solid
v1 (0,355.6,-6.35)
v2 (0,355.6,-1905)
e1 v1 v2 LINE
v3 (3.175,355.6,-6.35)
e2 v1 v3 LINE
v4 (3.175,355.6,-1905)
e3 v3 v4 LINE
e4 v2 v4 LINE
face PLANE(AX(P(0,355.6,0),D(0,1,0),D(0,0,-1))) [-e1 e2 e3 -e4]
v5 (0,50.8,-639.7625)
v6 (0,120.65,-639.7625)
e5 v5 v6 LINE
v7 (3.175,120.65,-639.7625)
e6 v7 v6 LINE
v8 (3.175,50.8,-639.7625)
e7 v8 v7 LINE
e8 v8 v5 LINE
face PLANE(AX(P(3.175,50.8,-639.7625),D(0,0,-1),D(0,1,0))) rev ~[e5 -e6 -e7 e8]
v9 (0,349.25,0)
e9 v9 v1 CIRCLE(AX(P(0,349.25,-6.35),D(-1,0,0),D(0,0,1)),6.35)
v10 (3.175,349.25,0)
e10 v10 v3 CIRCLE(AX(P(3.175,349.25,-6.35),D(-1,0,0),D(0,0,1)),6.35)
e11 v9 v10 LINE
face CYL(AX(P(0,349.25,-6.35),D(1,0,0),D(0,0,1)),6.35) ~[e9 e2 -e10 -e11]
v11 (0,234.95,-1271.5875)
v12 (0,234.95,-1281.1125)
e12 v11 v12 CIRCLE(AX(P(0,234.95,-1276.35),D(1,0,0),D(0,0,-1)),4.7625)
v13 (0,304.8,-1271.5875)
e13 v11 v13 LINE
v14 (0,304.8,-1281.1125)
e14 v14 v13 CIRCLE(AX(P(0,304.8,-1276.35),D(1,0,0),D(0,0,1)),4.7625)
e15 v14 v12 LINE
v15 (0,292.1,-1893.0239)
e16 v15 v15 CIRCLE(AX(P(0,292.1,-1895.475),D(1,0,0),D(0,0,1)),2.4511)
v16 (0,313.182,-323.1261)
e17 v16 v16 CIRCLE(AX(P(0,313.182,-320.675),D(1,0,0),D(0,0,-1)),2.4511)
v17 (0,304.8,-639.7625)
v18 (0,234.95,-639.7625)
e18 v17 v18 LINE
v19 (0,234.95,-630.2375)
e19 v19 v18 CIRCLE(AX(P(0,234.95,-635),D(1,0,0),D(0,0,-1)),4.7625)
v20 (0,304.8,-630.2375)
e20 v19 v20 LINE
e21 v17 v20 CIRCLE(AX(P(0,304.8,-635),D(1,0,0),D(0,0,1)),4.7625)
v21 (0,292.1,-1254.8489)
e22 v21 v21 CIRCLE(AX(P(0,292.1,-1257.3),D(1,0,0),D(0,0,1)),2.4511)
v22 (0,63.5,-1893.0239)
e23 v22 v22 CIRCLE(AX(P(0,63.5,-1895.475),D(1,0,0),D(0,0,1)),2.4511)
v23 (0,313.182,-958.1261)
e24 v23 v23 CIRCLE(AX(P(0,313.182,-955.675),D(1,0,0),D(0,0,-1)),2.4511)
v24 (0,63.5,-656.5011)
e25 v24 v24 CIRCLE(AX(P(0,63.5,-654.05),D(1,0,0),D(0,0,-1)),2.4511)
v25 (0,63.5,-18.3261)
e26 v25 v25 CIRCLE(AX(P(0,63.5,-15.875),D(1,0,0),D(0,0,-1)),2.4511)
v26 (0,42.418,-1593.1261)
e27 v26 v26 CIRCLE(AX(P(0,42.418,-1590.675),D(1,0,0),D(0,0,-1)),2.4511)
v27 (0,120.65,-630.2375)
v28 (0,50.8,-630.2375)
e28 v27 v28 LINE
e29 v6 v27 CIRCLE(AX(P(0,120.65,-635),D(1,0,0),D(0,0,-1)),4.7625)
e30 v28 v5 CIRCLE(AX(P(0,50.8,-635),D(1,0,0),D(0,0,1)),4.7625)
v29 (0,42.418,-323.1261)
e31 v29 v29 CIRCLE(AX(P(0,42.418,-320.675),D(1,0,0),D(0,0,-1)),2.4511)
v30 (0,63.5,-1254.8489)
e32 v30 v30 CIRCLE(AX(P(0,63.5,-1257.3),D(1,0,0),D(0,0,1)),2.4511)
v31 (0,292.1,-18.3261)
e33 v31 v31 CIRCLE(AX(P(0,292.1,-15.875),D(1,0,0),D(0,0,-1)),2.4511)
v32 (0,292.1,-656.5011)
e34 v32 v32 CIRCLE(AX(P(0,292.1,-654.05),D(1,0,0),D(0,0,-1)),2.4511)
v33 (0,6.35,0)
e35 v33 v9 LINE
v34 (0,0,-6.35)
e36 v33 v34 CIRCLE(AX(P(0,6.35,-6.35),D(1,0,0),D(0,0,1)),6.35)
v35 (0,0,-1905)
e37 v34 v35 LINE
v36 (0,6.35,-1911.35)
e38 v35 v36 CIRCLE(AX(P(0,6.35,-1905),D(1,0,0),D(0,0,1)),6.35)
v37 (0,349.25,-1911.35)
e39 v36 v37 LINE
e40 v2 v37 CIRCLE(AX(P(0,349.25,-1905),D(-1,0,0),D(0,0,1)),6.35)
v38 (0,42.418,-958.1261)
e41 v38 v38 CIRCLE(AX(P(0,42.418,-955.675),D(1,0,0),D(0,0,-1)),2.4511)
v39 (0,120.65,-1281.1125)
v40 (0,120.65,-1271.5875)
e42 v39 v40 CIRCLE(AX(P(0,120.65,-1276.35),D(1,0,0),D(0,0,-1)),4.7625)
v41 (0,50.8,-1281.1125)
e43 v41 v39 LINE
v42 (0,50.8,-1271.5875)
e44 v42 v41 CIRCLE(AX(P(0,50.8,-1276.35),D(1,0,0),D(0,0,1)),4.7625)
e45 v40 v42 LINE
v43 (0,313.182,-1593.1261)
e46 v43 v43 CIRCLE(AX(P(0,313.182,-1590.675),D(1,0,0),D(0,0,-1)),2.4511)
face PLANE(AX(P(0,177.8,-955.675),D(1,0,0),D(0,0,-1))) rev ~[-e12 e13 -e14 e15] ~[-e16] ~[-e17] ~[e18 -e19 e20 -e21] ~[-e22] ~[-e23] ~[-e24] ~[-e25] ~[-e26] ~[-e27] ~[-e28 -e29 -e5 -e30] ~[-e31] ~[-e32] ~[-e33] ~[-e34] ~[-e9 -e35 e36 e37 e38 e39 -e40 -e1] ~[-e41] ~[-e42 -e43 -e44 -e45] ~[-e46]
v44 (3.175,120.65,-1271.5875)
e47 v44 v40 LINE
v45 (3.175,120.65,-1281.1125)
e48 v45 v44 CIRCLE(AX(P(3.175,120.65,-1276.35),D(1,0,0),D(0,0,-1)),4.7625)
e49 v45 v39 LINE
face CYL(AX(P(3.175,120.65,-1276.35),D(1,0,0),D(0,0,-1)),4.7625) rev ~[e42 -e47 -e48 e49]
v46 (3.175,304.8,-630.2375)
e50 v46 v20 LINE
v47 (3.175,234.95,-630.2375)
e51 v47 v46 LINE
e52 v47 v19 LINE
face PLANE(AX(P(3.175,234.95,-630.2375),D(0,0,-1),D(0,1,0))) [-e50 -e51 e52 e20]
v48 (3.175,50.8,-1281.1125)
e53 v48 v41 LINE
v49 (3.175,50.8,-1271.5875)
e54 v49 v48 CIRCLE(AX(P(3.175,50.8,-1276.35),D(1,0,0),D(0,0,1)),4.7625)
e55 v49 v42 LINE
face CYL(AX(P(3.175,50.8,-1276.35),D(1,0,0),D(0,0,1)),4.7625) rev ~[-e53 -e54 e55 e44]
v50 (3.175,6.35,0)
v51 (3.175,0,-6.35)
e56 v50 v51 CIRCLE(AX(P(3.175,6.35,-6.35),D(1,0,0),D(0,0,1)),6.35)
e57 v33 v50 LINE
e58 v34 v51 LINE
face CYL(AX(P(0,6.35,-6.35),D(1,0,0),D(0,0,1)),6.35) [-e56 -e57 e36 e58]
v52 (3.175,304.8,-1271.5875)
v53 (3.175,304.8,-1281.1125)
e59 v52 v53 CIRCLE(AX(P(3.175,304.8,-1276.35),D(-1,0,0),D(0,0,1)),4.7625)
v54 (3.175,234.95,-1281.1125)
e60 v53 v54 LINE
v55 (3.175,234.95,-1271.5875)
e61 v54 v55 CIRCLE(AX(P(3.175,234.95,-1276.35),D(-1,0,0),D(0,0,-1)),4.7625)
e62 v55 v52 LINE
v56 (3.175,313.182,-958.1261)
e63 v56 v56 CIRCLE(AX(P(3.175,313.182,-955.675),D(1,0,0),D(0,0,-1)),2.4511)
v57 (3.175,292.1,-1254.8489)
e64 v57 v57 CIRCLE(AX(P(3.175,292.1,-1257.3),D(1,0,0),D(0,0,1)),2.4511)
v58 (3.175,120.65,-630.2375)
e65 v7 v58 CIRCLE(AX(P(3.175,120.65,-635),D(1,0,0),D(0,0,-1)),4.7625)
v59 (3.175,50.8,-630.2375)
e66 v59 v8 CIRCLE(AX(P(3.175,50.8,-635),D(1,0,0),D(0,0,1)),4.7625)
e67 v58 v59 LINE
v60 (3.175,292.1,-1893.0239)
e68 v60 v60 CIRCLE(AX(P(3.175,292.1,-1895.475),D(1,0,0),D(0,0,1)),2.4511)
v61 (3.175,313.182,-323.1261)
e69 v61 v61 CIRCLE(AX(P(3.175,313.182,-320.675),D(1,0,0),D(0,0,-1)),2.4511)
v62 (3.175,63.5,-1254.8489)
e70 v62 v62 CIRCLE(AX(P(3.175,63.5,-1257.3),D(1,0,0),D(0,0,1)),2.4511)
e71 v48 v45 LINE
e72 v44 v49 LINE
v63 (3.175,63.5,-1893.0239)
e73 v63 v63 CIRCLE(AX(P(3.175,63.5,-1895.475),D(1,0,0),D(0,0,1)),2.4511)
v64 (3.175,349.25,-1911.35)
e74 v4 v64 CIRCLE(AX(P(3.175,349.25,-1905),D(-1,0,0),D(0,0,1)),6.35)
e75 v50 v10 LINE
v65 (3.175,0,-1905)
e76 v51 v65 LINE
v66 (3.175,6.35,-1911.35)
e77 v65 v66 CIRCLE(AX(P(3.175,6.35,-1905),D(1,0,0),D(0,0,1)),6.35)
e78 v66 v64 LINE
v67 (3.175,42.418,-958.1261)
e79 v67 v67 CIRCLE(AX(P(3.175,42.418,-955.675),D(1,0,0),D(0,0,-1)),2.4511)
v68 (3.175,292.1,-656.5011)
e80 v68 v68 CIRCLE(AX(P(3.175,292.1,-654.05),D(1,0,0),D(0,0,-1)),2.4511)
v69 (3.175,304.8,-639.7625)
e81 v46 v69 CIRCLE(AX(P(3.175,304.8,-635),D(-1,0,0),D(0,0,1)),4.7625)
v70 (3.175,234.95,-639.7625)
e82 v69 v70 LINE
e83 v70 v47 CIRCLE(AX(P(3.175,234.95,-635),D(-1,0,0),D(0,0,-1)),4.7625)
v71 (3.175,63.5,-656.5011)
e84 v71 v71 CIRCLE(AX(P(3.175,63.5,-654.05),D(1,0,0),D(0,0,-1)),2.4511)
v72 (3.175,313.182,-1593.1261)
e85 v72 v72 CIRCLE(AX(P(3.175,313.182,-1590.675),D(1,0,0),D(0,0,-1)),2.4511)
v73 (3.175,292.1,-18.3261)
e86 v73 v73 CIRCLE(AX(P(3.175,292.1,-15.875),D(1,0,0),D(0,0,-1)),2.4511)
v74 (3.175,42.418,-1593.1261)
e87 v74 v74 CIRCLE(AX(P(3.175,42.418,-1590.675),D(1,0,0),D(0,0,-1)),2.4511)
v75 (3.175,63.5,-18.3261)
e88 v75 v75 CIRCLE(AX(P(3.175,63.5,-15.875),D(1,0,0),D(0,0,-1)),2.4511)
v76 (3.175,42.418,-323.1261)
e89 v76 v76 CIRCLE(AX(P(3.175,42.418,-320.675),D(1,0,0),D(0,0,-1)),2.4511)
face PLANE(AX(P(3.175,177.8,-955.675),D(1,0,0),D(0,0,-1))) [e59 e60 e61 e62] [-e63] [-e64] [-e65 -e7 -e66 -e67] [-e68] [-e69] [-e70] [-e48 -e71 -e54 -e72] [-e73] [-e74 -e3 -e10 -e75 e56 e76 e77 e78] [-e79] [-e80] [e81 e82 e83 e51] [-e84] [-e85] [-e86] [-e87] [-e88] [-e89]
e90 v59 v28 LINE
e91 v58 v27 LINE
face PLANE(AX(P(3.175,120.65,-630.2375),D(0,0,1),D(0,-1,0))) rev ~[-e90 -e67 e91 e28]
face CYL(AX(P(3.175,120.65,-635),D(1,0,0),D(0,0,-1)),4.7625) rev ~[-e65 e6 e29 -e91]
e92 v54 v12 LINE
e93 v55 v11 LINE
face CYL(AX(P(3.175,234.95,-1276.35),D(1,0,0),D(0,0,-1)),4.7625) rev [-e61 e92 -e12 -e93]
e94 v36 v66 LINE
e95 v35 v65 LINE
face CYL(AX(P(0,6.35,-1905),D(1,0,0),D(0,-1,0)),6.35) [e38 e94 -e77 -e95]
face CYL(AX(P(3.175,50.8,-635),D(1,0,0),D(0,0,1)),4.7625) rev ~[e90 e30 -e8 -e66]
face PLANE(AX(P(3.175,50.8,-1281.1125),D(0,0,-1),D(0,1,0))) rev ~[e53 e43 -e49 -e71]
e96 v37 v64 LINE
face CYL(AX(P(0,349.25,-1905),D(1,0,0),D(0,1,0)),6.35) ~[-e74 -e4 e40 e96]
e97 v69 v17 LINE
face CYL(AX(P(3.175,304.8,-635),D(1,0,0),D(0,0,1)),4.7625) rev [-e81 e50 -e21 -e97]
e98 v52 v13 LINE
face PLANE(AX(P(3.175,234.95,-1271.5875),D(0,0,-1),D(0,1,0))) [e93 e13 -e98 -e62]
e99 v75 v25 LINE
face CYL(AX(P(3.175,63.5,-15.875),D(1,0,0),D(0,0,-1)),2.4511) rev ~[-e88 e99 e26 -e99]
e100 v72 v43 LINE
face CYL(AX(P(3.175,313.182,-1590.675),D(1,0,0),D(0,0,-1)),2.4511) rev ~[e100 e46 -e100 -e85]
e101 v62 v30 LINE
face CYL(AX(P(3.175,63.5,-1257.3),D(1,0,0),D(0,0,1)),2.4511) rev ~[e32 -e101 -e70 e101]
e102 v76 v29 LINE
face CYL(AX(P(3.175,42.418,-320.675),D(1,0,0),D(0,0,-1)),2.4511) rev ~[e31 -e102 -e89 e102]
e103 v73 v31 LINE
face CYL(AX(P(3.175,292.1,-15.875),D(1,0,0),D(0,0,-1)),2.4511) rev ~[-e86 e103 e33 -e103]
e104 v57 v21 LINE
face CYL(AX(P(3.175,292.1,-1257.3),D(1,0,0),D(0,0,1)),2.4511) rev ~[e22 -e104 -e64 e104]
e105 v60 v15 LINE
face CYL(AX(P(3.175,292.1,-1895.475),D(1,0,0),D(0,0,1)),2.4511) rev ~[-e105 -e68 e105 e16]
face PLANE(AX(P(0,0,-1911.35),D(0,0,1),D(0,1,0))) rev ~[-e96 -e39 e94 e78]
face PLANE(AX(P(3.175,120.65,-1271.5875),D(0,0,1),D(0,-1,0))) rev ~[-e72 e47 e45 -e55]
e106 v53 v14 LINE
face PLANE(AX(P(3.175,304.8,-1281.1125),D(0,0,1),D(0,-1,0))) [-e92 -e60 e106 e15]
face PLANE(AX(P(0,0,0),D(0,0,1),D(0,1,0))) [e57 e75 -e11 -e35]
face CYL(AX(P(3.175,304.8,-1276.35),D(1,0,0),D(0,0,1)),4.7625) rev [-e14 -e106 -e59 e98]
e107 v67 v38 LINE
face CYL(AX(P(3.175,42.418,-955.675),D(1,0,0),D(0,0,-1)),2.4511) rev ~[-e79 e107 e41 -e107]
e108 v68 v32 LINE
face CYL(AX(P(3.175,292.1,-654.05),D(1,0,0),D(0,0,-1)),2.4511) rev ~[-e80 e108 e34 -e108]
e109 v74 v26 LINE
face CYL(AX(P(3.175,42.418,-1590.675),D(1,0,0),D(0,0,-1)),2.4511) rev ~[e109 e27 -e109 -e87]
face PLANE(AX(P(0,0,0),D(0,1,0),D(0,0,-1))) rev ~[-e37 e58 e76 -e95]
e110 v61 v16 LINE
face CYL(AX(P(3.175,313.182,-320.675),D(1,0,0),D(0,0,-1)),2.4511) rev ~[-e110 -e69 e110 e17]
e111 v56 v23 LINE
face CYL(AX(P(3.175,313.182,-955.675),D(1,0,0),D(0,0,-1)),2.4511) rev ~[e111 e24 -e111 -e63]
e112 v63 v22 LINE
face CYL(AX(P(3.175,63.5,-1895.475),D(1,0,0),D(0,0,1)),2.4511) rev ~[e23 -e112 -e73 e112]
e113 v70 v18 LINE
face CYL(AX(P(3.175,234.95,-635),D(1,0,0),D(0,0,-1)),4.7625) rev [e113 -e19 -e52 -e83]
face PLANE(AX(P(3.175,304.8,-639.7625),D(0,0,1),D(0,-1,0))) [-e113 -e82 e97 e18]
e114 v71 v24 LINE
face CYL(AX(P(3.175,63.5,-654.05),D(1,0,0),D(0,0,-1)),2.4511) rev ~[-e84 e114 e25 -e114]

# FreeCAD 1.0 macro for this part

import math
import FreeCAD as App
import Part
import Sketcher
from FreeCAD import Vector
Q = App.Units.Quantity


def edges_at(feature, points):
    """Names of the edges that pass closest to the given points."""
    edges = feature.Shape.Edges
    near = lambda p: min(range(len(edges)), key=lambda i: edges[i].distToShape(Part.Vertex(*p))[0])
    return sorted({f"Edge{near(p) + 1}" for p in points})


def add_polygon(sketch, points):
    """Adds a closed chain of lines whose ends are joined by coincident constraints."""
    first, n = sketch.GeometryCount, len(points)
    for a, b in zip(points, points[1:] + points[:1]):
        sketch.addGeometry(Part.LineSegment(App.Vector(*a, 0), App.Vector(*b, 0)), False)
    for i in range(n):
        sketch.addConstraint(Sketcher.Constraint("Coincident", first + i, 2, first + (i + 1) % n, 1))

doc = App.newDocument("Part")
body = doc.addObject("PartDesign::Body", "Body")

# Sketch on YZ plane
sketch1 = body.newObject("Sketcher::SketchObject", "Sketch")
sketch1.AttachmentSupport = (doc.getObject("YZ_Plane"), [""])
sketch1.MapMode = "FlatFace"
add_polygon(sketch1, [(355.6, 0), (0, 0), (0, -1911.35), (355.6, -1911.35)])  # lines 0-3
sketch1.addConstraint([
    Sketcher.Constraint("Horizontal", 0),
    Sketcher.Constraint("Vertical", 1),
    Sketcher.Constraint("Horizontal", 2),
    Sketcher.Constraint("Vertical", 3),
    Sketcher.Constraint("Coincident", 0, 2, -1, 1),
    Sketcher.Constraint("DistanceX", 0, 2, 0, 1, Q("14 in")),
    Sketcher.Constraint("DistanceY", 1, 2, 1, 1, Q("75.25 in")),
])
pad1 = body.newObject("PartDesign::Pad", "Pad")
pad1.Profile = sketch1
pad1.Length = Q("0.125 in")

# Sketch on YZ plane
sketch2 = body.newObject("Sketcher::SketchObject", "Sketch001")
sketch2.AttachmentSupport = (doc.getObject("YZ_Plane"), [""])
sketch2.MapMode = "FlatFace"
sketch2.AttachmentOffset = App.Placement(Vector(0, 0, 0.125 * 25.4), App.Rotation())
sketch2.addGeometry([
    Part.Circle(Vector(292.1, -15.875, 0), Vector(0, 0, 1), 2.4511),  # 0
    Part.Circle(Vector(292.1, -654.05, 0), Vector(0, 0, 1), 2.4511),  # 1
    Part.Circle(Vector(313.182, -320.675, 0), Vector(0, 0, 1), 2.4511),  # 2
    Part.Circle(Vector(313.182, -955.675, 0), Vector(0, 0, 1), 2.4511),  # 3
    Part.Circle(Vector(313.182, -1590.675, 0), Vector(0, 0, 1), 2.4511),  # 4
    Part.Circle(Vector(42.418, -955.675, 0), Vector(0, 0, 1), 2.4511),  # 5
    Part.Circle(Vector(42.418, -1590.675, 0), Vector(0, 0, 1), 2.4511),  # 6
    Part.Circle(Vector(42.418, -320.675, 0), Vector(0, 0, 1), 2.4511),  # 7
    Part.Circle(Vector(63.5, -15.875, 0), Vector(0, 0, 1), 2.4511),  # 8
    Part.Circle(Vector(63.5, -654.05, 0), Vector(0, 0, 1), 2.4511),  # 9
    Part.Circle(Vector(63.5, -1895.475, 0), Vector(0, 0, 1), 2.4511),  # 10
    Part.Circle(Vector(292.1, -1895.475, 0), Vector(0, 0, 1), 2.4511),  # 11
    Part.Circle(Vector(63.5, -1257.3, 0), Vector(0, 0, 1), 2.4511),  # 12
    Part.Circle(Vector(292.1, -1257.3, 0), Vector(0, 0, 1), 2.4511),  # 13
], False)
sketch2.addConstraint([
    Sketcher.Constraint("Equal", 0, 1),
    Sketcher.Constraint("Equal", 1, 2),
    Sketcher.Constraint("Equal", 2, 3),
    Sketcher.Constraint("Equal", 3, 4),
    Sketcher.Constraint("Equal", 4, 5),
    Sketcher.Constraint("Equal", 5, 6),
    Sketcher.Constraint("Equal", 6, 7),
    Sketcher.Constraint("Equal", 7, 8),
    Sketcher.Constraint("Equal", 8, 9),
    Sketcher.Constraint("Equal", 9, 10),
    Sketcher.Constraint("Equal", 10, 11),
    Sketcher.Constraint("Equal", 11, 12),
    Sketcher.Constraint("Equal", 12, 13),
    Sketcher.Constraint("Horizontal", 3, 3, 5, 3),
    Sketcher.Constraint("Horizontal", 4, 3, 6, 3),
    Sketcher.Constraint("Horizontal", 2, 3, 7, 3),
    Sketcher.Constraint("Horizontal", 0, 3, 8, 3),
    Sketcher.Constraint("Horizontal", 1, 3, 9, 3),
    Sketcher.Constraint("Horizontal", 10, 3, 11, 3),
    Sketcher.Constraint("Horizontal", 12, 3, 13, 3),
    Sketcher.Constraint("Vertical", 0, 3, 1, 3),
    Sketcher.Constraint("Vertical", 2, 3, 3, 3),
    Sketcher.Constraint("Vertical", 3, 3, 4, 3),
    Sketcher.Constraint("Vertical", 5, 3, 6, 3),
    Sketcher.Constraint("Vertical", 6, 3, 7, 3),
    Sketcher.Constraint("Vertical", 8, 3, 9, 3),
    Sketcher.Constraint("Vertical", 9, 3, 10, 3),
    Sketcher.Constraint("Vertical", 1, 3, 11, 3),
    Sketcher.Constraint("Vertical", 10, 3, 12, 3),
    Sketcher.Constraint("Vertical", 11, 3, 13, 3),
    Sketcher.Constraint("Diameter", 0, Q("0.193 in")),
    Sketcher.Constraint("DistanceY", 2, 3, 0, 3, Q("12 in")),
    Sketcher.Constraint("DistanceY", 3, 3, 2, 3, Q("25 in")),
    Sketcher.Constraint("DistanceY", 4, 3, 3, 3, Q("25 in")),
    Sketcher.Constraint("DistanceX", 8, 3, 0, 3, Q("9 in")),
    Sketcher.Constraint("DistanceY", 10, 3, 6, 3, Q("12 in")),
    Sketcher.Constraint("DistanceX", -1, 1, 0, 3, Q("11.5 in")),
    Sketcher.Constraint("DistanceY", 12, 3, -1, 1, Q("49.5 in")),
    Sketcher.Constraint("DistanceY", 1, 3, -1, 1, Q("25.75 in")),
    Sketcher.Constraint("DistanceX", -1, 1, 2, 3, Q("12.33 in")),
    Sketcher.Constraint("DistanceX", -1, 1, 5, 3, Q("1.67 in")),
    Sketcher.Constraint("DistanceY", 0, 3, -1, 1, Q("0.625 in")),
])
pocket1 = body.newObject("PartDesign::Pocket", "Pocket")
pocket1.Profile = sketch2
pocket1.Type = "ThroughAll"
doc.recompute()

fillet = body.newObject("PartDesign::Fillet", "Fillet")
fillet.Base = (pocket1, edges_at(pocket1, [
    (1.587, 355.6, 0),
    (1.587, 355.6, -1911.35),
    (1.587, 0, -1911.35),
    (1.587, 0, 0),
]))
fillet.Radius = Q("0.25 in")

# Sketch on YZ plane
sketch3 = body.newObject("Sketcher::SketchObject", "Sketch002")
sketch3.AttachmentSupport = (doc.getObject("YZ_Plane"), [""])
sketch3.MapMode = "FlatFace"
sketch3.AttachmentOffset = App.Placement(Vector(0, 0, 0.125 * 25.4), App.Rotation())
sketch3.addGeometry([
    Part.LineSegment(Vector(234.95, -639.7625, 0), Vector(304.8, -639.7625, 0)),  # 0
    Part.ArcOfCircle(Part.Circle(Vector(304.8, -635, 0), Vector(0, 0, 1), 4.7625), math.radians(-90), math.radians(90)),  # 1
    Part.LineSegment(Vector(304.8, -630.2375, 0), Vector(234.95, -630.2375, 0)),  # 2
    Part.ArcOfCircle(Part.Circle(Vector(234.95, -635, 0), Vector(0, 0, 1), 4.7625), math.radians(90), math.radians(270)),  # 3
    Part.LineSegment(Vector(234.95, -1281.1125, 0), Vector(304.8, -1281.1125, 0)),  # 4
    Part.ArcOfCircle(Part.Circle(Vector(304.8, -1276.35, 0), Vector(0, 0, 1), 4.7625), math.radians(-90), math.radians(90)),  # 5
    Part.LineSegment(Vector(304.8, -1271.5875, 0), Vector(234.95, -1271.5875, 0)),  # 6
    Part.ArcOfCircle(Part.Circle(Vector(234.95, -1276.35, 0), Vector(0, 0, 1), 4.7625), math.radians(90), math.radians(270)),  # 7
    Part.LineSegment(Vector(50.8, -1281.1125, 0), Vector(120.65, -1281.1125, 0)),  # 8
    Part.ArcOfCircle(Part.Circle(Vector(120.65, -1276.35, 0), Vector(0, 0, 1), 4.7625), math.radians(-90), math.radians(90)),  # 9
    Part.LineSegment(Vector(120.65, -1271.5875, 0), Vector(50.8, -1271.5875, 0)),  # 10
    Part.ArcOfCircle(Part.Circle(Vector(50.8, -1276.35, 0), Vector(0, 0, 1), 4.7625), math.radians(90), math.radians(270)),  # 11
    Part.LineSegment(Vector(50.8, -639.7625, 0), Vector(120.65, -639.7625, 0)),  # 12
    Part.ArcOfCircle(Part.Circle(Vector(120.65, -635, 0), Vector(0, 0, 1), 4.7625), math.radians(-90), math.radians(90)),  # 13
    Part.LineSegment(Vector(120.65, -630.2375, 0), Vector(50.8, -630.2375, 0)),  # 14
    Part.ArcOfCircle(Part.Circle(Vector(50.8, -635, 0), Vector(0, 0, 1), 4.7625), math.radians(90), math.radians(270)),  # 15
], False)
sketch3.addConstraint([
    Sketcher.Constraint("Tangent", 0, 2, 1, 1),
    Sketcher.Constraint("Tangent", 1, 2, 2, 1),
    Sketcher.Constraint("Tangent", 2, 2, 3, 1),
    Sketcher.Constraint("Tangent", 3, 2, 0, 1),
    Sketcher.Constraint("Tangent", 4, 2, 5, 1),
    Sketcher.Constraint("Tangent", 5, 2, 6, 1),
    Sketcher.Constraint("Tangent", 6, 2, 7, 1),
    Sketcher.Constraint("Tangent", 7, 2, 4, 1),
    Sketcher.Constraint("Tangent", 8, 2, 9, 1),
    Sketcher.Constraint("Tangent", 9, 2, 10, 1),
    Sketcher.Constraint("Tangent", 10, 2, 11, 1),
    Sketcher.Constraint("Tangent", 11, 2, 8, 1),
    Sketcher.Constraint("Tangent", 12, 2, 13, 1),
    Sketcher.Constraint("Tangent", 13, 2, 14, 1),
    Sketcher.Constraint("Tangent", 14, 2, 15, 1),
    Sketcher.Constraint("Tangent", 15, 2, 12, 1),
    Sketcher.Constraint("Horizontal", 0),
    Sketcher.Constraint("Horizontal", 2),
    Sketcher.Constraint("Horizontal", 4),
    Sketcher.Constraint("Horizontal", 6),
    Sketcher.Constraint("Horizontal", 8),
    Sketcher.Constraint("Horizontal", 10),
    Sketcher.Constraint("Horizontal", 12),
    Sketcher.Constraint("Horizontal", 14),
    Sketcher.Constraint("Equal", 3, 5),
    Sketcher.Constraint("Equal", 7, 9),
    Sketcher.Constraint("Equal", 11, 13),
    Sketcher.Constraint("Horizontal", 7, 3, 9, 3),
    Sketcher.Constraint("Horizontal", 3, 3, 13, 3),
    Sketcher.Constraint("Vertical", 1, 3, 5, 3),
    Sketcher.Constraint("Vertical", 3, 3, 7, 3),
    Sketcher.Constraint("Vertical", 9, 3, 13, 3),
    Sketcher.Constraint("Vertical", 11, 3, 15, 3),
    Sketcher.Constraint("Equal", 6, 8),
    Sketcher.Constraint("DistanceX", -1, 1, 1, 3, Q("12 in")),
    Sketcher.Constraint("DistanceY", 1, 3, -1, 1, Q("25 in")),
    Sketcher.Constraint("DistanceX", -1, 1, 11, 3, Q("2 in")),
    Sketcher.Constraint("Radius", 1, Q("0.1875 in")),
    Sketcher.Constraint("DistanceX", 0, 1, 0, 2, Q("2.75 in")),
    Sketcher.Constraint("DistanceY", 5, 3, -1, 1, Q("50.25 in")),
])
pocket2 = body.newObject("PartDesign::Pocket", "Pocket001")
pocket2.Profile = sketch3
pocket2.Type = "ThroughAll"

doc.recompute()
